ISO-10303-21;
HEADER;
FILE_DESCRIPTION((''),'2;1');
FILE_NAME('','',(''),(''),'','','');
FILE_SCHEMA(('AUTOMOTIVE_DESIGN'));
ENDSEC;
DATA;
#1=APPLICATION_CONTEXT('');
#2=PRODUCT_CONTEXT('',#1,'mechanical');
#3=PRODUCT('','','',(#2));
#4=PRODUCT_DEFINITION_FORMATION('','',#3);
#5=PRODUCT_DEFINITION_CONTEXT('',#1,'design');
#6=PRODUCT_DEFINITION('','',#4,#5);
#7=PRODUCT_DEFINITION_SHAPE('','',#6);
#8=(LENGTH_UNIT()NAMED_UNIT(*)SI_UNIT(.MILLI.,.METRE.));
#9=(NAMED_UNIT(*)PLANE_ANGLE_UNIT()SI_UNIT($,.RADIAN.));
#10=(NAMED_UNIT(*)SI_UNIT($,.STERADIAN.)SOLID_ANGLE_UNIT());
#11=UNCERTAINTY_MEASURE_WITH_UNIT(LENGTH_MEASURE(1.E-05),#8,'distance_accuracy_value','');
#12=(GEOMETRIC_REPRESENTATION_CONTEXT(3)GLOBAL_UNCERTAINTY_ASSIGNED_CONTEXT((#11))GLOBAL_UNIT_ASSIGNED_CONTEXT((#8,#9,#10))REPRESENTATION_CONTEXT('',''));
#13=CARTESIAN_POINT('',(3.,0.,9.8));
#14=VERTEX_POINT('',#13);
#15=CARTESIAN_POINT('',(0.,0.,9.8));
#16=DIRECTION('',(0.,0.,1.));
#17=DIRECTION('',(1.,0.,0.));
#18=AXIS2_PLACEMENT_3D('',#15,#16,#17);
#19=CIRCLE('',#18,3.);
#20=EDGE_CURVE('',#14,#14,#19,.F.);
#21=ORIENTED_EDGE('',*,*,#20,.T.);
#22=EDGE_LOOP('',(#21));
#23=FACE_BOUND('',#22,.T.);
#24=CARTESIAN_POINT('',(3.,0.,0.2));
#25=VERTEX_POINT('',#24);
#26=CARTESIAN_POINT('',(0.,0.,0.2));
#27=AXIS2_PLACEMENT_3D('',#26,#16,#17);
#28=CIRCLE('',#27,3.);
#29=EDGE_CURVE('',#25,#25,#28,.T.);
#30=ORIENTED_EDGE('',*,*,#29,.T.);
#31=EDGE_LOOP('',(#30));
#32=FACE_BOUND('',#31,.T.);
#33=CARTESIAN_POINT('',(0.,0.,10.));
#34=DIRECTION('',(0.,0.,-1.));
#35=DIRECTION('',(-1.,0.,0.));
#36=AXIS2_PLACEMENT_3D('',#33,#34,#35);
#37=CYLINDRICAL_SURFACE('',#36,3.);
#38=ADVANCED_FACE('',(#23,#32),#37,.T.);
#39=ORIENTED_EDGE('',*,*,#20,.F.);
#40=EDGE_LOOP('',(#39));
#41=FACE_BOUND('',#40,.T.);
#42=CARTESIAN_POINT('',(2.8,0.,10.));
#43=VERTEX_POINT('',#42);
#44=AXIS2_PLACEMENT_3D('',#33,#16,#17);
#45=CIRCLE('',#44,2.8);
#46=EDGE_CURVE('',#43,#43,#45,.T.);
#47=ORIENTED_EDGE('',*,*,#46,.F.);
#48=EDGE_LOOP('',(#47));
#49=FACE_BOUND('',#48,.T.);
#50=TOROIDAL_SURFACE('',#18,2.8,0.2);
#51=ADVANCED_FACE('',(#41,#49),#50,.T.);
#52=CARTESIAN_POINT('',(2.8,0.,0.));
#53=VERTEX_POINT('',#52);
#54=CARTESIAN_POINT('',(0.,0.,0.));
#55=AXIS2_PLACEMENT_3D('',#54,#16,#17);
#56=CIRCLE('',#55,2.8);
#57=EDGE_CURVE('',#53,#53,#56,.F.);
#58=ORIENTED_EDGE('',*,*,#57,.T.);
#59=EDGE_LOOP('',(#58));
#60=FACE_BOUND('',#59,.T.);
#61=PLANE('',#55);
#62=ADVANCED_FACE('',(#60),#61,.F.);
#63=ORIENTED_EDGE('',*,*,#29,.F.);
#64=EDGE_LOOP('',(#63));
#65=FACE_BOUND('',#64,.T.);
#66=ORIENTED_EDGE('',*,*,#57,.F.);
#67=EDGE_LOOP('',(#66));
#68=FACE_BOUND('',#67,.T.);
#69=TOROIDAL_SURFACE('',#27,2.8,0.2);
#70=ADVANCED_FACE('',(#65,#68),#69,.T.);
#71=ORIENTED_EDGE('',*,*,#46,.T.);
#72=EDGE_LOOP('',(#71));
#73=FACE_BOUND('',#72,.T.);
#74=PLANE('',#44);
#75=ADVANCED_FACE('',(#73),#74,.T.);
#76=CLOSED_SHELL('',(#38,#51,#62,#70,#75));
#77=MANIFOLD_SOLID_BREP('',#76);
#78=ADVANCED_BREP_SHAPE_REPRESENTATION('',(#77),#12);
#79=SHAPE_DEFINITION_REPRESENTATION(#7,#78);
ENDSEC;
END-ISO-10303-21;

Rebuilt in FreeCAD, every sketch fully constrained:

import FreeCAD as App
import Part
import Sketcher
from FreeCAD import Vector
Q = App.Units.Quantity


def edges_at(feature, points):
    """Names of the edges that pass closest to the given points."""
    edges = feature.Shape.Edges
    near = lambda p: min(range(len(edges)), key=lambda i: edges[i].distToShape(Part.Vertex(*p))[0])
    return sorted({f"Edge{near(p) + 1}" for p in points})

doc = App.newDocument("Part")
body = doc.addObject("PartDesign::Body", "Body")

sketch1 = doc.addObject("Sketcher::SketchObject", "Sketch")
body.addObject(sketch1)
sketch1.AttachmentSupport = (doc.XY_Plane, [""])
sketch1.MapMode = "FlatFace"
sketch1.addGeometry(Part.Circle(Vector(0, 0, 0), Vector(0, 0, 1), 3), False)
sketch1.addConstraint(Sketcher.Constraint("Coincident", 0, 3, -1, 1))
sketch1.addConstraint(Sketcher.Constraint("Diameter", 0, Q("6 mm")))
pad1 = doc.addObject("PartDesign::Pad", "Pad")
body.addObject(pad1)
pad1.Profile = sketch1
pad1.Length = 10
doc.recompute()

fillet = doc.addObject("PartDesign::Fillet", "Fillet")
body.addObject(fillet)
fillet.Base = (pad1, edges_at(pad1, [(-3, 0, 0), (-3, 0, 10)]))
fillet.Radius = 0.2

doc.recompute()
